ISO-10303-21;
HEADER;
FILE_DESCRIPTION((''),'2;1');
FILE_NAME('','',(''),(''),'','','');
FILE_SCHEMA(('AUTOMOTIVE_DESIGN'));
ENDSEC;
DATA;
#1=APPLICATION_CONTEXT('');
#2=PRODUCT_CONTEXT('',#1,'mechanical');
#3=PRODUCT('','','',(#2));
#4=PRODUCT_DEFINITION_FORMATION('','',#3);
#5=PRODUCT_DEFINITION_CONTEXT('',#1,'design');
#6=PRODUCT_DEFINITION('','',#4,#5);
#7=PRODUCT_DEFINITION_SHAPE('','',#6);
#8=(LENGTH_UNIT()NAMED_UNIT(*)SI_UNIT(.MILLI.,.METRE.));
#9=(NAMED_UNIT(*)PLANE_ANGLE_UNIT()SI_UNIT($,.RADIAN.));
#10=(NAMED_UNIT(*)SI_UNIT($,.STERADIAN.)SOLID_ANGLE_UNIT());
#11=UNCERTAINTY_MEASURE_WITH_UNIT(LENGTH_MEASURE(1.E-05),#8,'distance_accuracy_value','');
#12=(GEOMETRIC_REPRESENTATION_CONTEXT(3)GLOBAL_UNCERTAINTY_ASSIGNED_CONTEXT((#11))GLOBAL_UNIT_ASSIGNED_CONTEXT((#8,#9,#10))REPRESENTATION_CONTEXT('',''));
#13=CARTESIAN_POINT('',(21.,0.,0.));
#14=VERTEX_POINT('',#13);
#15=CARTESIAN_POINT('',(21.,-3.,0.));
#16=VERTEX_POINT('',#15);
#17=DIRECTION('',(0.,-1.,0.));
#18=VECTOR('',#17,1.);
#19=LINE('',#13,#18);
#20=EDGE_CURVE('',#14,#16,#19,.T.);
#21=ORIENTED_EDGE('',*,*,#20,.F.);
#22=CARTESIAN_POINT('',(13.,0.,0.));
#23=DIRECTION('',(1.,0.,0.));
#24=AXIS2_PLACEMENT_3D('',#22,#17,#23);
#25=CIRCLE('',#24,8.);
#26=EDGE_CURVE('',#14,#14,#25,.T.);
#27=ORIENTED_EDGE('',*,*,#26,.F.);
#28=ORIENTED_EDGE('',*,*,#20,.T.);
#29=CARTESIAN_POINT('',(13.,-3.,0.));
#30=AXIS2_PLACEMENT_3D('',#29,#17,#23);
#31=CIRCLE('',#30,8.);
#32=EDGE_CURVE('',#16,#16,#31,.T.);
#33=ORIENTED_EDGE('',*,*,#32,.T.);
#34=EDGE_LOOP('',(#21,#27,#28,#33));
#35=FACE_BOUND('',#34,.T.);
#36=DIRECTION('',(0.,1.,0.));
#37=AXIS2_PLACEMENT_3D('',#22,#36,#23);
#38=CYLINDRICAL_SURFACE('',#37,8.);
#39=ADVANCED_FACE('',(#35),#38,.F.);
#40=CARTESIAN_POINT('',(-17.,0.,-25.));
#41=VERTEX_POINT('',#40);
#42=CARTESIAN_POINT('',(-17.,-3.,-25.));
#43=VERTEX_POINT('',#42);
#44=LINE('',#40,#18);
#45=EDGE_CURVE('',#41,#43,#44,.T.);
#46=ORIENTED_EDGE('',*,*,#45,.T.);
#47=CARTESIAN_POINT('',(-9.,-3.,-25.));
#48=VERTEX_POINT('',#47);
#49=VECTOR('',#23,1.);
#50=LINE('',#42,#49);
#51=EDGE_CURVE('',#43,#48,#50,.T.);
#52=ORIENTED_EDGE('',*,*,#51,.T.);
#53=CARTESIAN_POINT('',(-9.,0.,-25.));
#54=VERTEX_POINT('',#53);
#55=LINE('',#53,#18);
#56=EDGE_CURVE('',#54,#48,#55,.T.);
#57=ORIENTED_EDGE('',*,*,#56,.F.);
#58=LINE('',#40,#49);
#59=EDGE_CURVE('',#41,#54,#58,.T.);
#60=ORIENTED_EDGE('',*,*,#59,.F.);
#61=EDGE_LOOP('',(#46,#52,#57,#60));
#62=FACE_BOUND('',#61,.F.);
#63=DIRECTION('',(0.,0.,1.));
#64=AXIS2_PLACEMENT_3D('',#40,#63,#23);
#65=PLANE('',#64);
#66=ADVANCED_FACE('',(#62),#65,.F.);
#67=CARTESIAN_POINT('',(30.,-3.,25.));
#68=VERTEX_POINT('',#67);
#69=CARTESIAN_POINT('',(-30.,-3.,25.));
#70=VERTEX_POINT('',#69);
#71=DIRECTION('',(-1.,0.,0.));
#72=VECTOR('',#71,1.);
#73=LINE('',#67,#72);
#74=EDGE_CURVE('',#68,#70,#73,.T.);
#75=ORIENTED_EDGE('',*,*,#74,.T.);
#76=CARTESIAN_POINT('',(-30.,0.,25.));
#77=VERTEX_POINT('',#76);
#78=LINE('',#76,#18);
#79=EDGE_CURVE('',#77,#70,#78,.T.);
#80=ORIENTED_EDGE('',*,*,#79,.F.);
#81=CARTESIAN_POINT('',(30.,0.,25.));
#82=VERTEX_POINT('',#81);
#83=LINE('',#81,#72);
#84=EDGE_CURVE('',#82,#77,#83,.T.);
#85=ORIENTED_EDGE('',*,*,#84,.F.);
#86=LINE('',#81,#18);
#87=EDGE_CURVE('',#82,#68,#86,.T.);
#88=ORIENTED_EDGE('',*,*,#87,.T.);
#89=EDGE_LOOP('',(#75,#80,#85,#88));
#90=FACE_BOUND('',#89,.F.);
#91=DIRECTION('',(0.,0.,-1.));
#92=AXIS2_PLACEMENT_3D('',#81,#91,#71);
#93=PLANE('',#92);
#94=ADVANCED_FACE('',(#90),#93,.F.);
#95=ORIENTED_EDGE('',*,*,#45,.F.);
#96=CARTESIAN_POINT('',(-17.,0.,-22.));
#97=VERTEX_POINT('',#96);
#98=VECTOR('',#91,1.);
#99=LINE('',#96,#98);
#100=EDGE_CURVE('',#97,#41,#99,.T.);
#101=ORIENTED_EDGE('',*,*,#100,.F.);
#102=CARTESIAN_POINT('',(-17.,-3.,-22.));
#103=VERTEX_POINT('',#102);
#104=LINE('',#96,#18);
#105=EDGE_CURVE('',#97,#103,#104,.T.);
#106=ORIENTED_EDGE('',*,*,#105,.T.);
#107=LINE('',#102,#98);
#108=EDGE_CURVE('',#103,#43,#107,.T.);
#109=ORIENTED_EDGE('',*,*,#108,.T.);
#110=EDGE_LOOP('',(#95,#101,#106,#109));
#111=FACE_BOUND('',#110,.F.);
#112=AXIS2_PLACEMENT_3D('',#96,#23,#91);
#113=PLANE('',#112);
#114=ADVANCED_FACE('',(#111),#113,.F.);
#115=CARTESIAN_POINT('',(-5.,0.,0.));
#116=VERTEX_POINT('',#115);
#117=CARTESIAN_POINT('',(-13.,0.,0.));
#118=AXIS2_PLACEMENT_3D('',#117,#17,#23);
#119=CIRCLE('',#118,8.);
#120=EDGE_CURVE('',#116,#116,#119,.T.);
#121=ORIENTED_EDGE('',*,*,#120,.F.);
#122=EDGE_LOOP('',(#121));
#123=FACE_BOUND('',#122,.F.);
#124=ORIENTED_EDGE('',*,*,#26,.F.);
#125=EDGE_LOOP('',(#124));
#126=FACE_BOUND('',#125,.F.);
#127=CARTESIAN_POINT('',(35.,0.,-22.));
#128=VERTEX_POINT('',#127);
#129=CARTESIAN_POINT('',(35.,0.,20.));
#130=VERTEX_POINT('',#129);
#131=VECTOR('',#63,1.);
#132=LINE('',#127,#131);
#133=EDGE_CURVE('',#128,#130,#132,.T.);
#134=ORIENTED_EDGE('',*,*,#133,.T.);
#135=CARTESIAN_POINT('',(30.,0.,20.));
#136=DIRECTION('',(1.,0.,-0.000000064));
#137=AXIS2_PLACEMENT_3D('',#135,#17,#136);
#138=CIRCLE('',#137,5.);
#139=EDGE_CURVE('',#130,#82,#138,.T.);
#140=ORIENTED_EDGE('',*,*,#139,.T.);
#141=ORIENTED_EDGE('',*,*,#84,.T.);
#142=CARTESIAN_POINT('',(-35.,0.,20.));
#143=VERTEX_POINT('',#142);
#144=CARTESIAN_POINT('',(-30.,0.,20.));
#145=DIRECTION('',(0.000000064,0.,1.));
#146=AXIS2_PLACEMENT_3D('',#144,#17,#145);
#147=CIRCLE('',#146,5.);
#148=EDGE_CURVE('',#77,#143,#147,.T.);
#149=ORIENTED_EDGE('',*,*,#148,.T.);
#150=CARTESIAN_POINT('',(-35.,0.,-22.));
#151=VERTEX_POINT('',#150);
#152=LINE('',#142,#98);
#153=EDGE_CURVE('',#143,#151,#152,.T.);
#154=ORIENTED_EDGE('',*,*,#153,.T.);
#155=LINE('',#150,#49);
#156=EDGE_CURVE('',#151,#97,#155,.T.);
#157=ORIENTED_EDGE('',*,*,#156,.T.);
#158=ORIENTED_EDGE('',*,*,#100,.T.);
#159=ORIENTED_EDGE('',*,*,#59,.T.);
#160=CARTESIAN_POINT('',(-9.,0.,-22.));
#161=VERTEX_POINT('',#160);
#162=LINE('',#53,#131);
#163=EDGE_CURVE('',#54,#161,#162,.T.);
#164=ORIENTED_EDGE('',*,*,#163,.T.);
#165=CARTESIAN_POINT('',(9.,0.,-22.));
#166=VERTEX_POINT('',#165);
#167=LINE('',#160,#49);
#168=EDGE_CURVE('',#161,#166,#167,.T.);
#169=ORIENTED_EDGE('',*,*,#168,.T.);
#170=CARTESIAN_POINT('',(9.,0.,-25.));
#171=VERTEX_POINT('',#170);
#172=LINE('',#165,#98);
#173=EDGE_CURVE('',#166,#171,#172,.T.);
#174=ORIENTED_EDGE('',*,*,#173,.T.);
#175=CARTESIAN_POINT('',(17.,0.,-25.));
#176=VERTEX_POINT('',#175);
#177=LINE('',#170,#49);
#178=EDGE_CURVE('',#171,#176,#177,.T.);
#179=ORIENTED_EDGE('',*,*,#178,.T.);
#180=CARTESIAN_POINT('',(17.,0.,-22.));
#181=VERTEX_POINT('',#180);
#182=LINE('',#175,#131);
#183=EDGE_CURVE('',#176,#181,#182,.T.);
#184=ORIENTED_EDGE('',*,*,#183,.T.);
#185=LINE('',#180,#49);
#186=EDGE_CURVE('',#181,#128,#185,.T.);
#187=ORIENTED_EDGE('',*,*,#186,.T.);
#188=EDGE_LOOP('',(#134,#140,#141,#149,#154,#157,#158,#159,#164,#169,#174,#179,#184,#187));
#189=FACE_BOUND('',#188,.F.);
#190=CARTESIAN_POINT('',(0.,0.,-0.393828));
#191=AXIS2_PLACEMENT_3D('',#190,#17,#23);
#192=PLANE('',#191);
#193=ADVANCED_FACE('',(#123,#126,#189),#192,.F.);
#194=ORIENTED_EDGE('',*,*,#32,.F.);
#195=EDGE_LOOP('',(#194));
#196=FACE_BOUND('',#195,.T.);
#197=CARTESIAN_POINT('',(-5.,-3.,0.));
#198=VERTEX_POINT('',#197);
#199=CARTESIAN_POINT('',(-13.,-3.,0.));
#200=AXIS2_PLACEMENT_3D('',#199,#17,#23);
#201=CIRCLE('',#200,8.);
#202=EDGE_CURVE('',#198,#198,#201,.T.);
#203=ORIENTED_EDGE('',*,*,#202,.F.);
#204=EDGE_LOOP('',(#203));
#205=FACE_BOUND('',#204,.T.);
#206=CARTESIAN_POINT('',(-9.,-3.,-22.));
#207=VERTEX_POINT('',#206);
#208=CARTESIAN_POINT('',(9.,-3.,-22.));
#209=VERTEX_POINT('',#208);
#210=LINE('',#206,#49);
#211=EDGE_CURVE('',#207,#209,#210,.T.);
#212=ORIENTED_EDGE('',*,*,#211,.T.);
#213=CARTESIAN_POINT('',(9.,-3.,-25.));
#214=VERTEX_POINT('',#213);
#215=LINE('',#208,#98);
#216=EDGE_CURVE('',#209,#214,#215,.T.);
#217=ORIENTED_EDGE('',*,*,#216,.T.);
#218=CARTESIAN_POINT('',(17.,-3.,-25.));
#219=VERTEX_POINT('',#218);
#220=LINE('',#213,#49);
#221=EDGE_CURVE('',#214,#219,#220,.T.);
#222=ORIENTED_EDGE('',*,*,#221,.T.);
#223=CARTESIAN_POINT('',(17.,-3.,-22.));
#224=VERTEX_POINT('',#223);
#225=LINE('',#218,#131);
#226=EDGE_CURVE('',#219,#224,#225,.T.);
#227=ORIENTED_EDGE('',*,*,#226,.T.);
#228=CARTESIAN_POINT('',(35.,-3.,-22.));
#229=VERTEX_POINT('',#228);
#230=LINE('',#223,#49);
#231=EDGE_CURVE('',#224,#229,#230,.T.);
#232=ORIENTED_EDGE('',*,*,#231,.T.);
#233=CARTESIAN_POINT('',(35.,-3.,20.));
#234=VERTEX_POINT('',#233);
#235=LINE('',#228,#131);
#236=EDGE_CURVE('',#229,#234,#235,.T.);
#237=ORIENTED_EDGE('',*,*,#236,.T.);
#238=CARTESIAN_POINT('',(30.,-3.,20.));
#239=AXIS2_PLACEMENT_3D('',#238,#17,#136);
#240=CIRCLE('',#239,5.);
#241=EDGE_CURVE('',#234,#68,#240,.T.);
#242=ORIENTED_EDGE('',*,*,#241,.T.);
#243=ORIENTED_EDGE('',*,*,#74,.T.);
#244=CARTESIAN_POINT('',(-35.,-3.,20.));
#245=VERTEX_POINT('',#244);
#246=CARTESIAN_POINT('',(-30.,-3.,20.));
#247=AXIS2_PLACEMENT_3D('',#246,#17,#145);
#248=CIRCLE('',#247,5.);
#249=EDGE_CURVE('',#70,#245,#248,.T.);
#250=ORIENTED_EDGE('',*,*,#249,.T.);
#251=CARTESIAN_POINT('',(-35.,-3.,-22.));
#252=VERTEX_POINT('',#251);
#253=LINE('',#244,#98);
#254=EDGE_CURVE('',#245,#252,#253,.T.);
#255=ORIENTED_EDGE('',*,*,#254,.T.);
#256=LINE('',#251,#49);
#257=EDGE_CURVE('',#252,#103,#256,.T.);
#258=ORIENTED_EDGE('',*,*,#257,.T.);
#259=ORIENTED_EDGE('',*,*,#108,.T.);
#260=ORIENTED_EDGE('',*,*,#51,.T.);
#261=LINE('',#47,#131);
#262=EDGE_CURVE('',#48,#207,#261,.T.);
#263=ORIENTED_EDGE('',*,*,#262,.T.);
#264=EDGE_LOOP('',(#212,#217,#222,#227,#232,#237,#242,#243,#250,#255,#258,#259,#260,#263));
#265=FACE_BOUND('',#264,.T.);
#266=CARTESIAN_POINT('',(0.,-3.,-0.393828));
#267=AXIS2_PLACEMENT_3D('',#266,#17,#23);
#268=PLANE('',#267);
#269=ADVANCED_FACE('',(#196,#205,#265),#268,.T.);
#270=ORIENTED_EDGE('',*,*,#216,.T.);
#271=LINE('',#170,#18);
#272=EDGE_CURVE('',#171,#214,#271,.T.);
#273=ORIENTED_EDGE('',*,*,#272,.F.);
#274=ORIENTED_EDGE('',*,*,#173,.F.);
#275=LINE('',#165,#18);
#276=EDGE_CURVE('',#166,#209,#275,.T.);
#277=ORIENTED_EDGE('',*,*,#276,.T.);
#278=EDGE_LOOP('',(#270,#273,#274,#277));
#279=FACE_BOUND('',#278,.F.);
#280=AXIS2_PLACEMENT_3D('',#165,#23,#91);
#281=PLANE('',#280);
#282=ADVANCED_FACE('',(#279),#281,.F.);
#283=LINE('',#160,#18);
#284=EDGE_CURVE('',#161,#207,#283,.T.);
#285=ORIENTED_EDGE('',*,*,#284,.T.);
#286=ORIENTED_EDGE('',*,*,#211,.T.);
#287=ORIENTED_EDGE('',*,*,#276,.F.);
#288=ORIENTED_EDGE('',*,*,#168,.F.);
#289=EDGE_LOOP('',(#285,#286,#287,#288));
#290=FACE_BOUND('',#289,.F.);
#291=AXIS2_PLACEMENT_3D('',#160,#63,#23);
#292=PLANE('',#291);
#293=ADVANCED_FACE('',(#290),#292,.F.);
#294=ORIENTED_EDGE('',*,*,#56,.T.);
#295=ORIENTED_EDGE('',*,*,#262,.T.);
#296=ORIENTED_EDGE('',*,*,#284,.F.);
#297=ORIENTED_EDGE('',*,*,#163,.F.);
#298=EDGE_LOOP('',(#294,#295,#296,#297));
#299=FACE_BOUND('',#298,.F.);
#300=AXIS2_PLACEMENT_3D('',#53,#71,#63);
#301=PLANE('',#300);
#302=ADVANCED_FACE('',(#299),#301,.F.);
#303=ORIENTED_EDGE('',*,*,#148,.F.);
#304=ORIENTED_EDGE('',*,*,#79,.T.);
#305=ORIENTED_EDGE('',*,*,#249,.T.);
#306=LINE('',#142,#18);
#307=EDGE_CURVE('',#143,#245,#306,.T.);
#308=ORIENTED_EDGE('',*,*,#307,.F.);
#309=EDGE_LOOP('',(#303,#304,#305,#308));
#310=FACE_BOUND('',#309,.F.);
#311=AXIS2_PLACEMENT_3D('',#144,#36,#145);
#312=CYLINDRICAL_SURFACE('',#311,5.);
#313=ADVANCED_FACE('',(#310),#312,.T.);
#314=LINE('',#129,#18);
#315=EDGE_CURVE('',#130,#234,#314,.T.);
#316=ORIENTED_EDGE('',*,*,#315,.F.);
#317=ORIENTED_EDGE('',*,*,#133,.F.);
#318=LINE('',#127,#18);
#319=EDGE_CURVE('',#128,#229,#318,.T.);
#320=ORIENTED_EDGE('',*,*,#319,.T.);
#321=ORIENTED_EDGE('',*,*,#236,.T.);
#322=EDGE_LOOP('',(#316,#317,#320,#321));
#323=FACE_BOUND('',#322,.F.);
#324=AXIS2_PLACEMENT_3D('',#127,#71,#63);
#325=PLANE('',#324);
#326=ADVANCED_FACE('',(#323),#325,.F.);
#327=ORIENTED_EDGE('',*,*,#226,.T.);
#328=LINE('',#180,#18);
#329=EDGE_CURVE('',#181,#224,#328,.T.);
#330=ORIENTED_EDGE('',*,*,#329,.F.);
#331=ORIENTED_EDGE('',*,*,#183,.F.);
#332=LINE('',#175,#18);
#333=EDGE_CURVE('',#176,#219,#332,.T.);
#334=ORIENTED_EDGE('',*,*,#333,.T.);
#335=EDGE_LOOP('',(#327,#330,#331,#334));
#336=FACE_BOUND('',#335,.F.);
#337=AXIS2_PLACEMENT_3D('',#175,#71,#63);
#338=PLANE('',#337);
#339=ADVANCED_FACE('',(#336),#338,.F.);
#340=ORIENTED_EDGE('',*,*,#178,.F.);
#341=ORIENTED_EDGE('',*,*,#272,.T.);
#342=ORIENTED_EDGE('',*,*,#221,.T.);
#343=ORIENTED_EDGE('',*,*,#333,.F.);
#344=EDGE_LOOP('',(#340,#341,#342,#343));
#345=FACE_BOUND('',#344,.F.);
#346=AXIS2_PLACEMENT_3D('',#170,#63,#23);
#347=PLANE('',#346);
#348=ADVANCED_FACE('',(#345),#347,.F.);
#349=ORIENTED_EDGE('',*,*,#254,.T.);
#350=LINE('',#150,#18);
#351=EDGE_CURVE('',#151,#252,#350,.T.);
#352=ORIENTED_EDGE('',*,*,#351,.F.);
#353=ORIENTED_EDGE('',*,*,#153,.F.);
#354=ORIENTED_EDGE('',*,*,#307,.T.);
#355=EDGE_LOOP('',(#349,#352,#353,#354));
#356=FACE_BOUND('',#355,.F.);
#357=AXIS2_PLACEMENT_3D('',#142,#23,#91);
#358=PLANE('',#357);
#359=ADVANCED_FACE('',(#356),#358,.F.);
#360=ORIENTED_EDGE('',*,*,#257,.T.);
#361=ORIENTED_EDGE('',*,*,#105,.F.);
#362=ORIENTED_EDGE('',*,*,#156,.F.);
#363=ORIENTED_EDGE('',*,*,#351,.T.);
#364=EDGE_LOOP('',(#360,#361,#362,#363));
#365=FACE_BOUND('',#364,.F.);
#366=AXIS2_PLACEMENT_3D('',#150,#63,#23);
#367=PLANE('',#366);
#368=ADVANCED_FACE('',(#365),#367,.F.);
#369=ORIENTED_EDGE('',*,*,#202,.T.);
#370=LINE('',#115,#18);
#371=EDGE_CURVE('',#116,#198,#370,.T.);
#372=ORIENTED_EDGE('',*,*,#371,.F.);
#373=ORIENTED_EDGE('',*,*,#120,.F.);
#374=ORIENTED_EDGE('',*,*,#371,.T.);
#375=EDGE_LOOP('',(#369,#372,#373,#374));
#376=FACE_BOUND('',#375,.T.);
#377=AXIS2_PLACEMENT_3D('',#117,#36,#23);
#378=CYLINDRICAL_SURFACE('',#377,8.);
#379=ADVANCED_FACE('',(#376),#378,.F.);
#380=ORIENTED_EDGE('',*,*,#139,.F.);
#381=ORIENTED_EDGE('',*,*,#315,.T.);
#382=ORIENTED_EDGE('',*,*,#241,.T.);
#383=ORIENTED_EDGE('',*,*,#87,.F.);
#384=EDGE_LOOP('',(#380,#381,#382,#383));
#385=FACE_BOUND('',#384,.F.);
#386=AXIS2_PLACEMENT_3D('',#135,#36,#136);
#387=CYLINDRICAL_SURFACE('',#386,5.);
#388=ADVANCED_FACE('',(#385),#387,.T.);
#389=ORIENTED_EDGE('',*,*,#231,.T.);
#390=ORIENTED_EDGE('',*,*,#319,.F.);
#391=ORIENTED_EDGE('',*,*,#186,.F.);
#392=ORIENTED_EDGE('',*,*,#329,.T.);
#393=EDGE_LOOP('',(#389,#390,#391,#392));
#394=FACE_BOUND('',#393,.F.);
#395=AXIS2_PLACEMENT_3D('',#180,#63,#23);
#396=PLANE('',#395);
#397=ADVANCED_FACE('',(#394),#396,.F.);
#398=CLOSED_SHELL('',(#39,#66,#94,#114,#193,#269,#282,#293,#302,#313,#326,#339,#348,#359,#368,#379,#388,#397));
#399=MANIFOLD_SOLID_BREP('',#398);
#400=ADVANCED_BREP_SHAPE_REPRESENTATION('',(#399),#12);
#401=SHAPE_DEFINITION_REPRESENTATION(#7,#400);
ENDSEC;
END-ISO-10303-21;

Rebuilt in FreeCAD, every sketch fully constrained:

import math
import FreeCAD as App
import Part
import Sketcher

V = App.Vector

doc = App.newDocument("Part")
body = doc.addObject("PartDesign::Body", "Body")

# Sketch on XZ plane
sketch1 = body.newObject("Sketcher::SketchObject", "Sketch")
sketch1.AttachmentSupport = (doc.getObject("XZ_Plane"), [""])
sketch1.MapMode = "FlatFace"
sketch1.addGeometry(Part.LineSegment(V(30, 25, 0), V(-30, 25, 0)), False)
sketch1.addGeometry(Part.ArcOfCircle(Part.Circle(V(-30, 20, 0), V(0, 0, 1), 5), math.radians(89.999996), math.radians(180.000004)), False)
sketch1.addGeometry(Part.LineSegment(V(-35, 20, 0), V(-35, -22, 0)), False)
sketch1.addGeometry(Part.LineSegment(V(-35, -22, 0), V(-17, -22, 0)), False)
sketch1.addGeometry(Part.LineSegment(V(-17, -22, 0), V(-17, -25, 0)), False)
sketch1.addGeometry(Part.LineSegment(V(-17, -25, 0), V(-9, -25, 0)), False)
sketch1.addGeometry(Part.LineSegment(V(-9, -25, 0), V(-9, -22, 0)), False)
sketch1.addGeometry(Part.LineSegment(V(-9, -22, 0), V(9, -22, 0)), False)
sketch1.addGeometry(Part.LineSegment(V(9, -22, 0), V(9, -25, 0)), False)
sketch1.addGeometry(Part.LineSegment(V(9, -25, 0), V(17, -25, 0)), False)
sketch1.addGeometry(Part.LineSegment(V(17, -25, 0), V(17, -22, 0)), False)
sketch1.addGeometry(Part.LineSegment(V(17, -22, 0), V(35, -22, 0)), False)
sketch1.addGeometry(Part.LineSegment(V(35, -22, 0), V(35, 20, 0)), False)
sketch1.addGeometry(Part.ArcOfCircle(Part.Circle(V(30, 20, 0), V(0, 0, 1), 5), math.radians(-0.000004), math.radians(90.000004)), False)
sketch1.addGeometry(Part.Circle(V(-13, 0, 0), V(0, 0, 1), 8), False)
sketch1.addGeometry(Part.Circle(V(13, 0, 0), V(0, 0, 1), 8), False)
sketch1.addConstraint(Sketcher.Constraint("Tangent", 0, 2, 1, 1))
sketch1.addConstraint(Sketcher.Constraint("Tangent", 1, 2, 2, 1))
sketch1.addConstraint(Sketcher.Constraint("Coincident", 2, 2, 3, 1))
sketch1.addConstraint(Sketcher.Constraint("Coincident", 3, 2, 4, 1))
sketch1.addConstraint(Sketcher.Constraint("Coincident", 4, 2, 5, 1))
sketch1.addConstraint(Sketcher.Constraint("Coincident", 5, 2, 6, 1))
sketch1.addConstraint(Sketcher.Constraint("Coincident", 6, 2, 7, 1))
sketch1.addConstraint(Sketcher.Constraint("Coincident", 7, 2, 8, 1))
sketch1.addConstraint(Sketcher.Constraint("Coincident", 8, 2, 9, 1))
sketch1.addConstraint(Sketcher.Constraint("Coincident", 9, 2, 10, 1))
sketch1.addConstraint(Sketcher.Constraint("Coincident", 10, 2, 11, 1))
sketch1.addConstraint(Sketcher.Constraint("Coincident", 11, 2, 12, 1))
sketch1.addConstraint(Sketcher.Constraint("Tangent", 12, 2, 13, 1))
sketch1.addConstraint(Sketcher.Constraint("Tangent", 13, 2, 0, 1))
sketch1.addConstraint(Sketcher.Constraint("Horizontal", 0))
sketch1.addConstraint(Sketcher.Constraint("Vertical", 2))
sketch1.addConstraint(Sketcher.Constraint("Horizontal", 3))
sketch1.addConstraint(Sketcher.Constraint("Vertical", 4))
sketch1.addConstraint(Sketcher.Constraint("Horizontal", 5))
sketch1.addConstraint(Sketcher.Constraint("Vertical", 6))
sketch1.addConstraint(Sketcher.Constraint("Horizontal", 7))
sketch1.addConstraint(Sketcher.Constraint("Vertical", 8))
sketch1.addConstraint(Sketcher.Constraint("Horizontal", 9))
sketch1.addConstraint(Sketcher.Constraint("Vertical", 10))
sketch1.addConstraint(Sketcher.Constraint("Horizontal", 11))
sketch1.addConstraint(Sketcher.Constraint("Vertical", 12))
sketch1.addConstraint(Sketcher.Constraint("Equal", 1, 13))
sketch1.addConstraint(Sketcher.Constraint("Equal", 14, 15))
sketch1.addConstraint(Sketcher.Constraint("Symmetric", 14, 3, 15, 3, -1, 1))
sketch1.addConstraint(Sketcher.Constraint("Symmetric", 5, 2, 8, 2, -2))
sketch1.addConstraint(Sketcher.Constraint("Symmetric", 3, 2, 10, 2, -2))
sketch1.addConstraint(Sketcher.Constraint("PointOnObject", 14, 3, -1))
sketch1.addConstraint(Sketcher.Constraint("Horizontal", 3, 2, 6, 2))
sketch1.addConstraint(Sketcher.Constraint("Equal", 3, 7))
sketch1.addConstraint(Sketcher.Constraint("Equal", 7, 11))
sketch1.addConstraint(Sketcher.Constraint("Diameter", 14, 16.0))
sketch1.addConstraint(Sketcher.Constraint("Radius", 1, 5.0))
sketch1.addConstraint(Sketcher.Constraint("DistanceX", 0, 2, 0, 1, 60.0))
sketch1.addConstraint(Sketcher.Constraint("DistanceX", 3, 1, 3, 2, 18.0))
sketch1.addConstraint(Sketcher.Constraint("DistanceY", 2, 2, 2, 1, 42.0))
sketch1.addConstraint(Sketcher.Constraint("DistanceY", 4, 2, 4, 1, 3.0))
sketch1.addConstraint(Sketcher.Constraint("DistanceY", -1, 1, 1, 3, 20.0))
sketch1.addConstraint(Sketcher.Constraint("DistanceX", 14, 3, -1, 1, 13.0))
pad1 = body.newObject("PartDesign::Pad", "Pad")
pad1.Profile = sketch1
pad1.Length = 3

doc.recompute()
